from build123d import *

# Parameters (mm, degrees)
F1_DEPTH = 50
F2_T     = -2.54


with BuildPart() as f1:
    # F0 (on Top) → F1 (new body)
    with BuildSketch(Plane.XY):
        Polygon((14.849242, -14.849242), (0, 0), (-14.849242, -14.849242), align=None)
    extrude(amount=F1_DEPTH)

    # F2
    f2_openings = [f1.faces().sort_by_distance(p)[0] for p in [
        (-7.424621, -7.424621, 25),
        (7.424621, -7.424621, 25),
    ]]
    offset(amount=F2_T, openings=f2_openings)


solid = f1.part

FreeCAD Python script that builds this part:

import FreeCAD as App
import Part
import Sketcher
from FreeCAD import Vector


def faces_at(feature, points):
    """Names of the faces that lie closest to the given points."""
    faces = feature.Shape.Faces
    near = lambda p: min(range(len(faces)), key=lambda i: faces[i].distToShape(Part.Vertex(*p))[0])
    return sorted({f"Face{near(p) + 1}" for p in points})


def add_polygon(sketch, points):
    """Adds a closed chain of lines whose ends are joined by coincident constraints."""
    first, n = sketch.GeometryCount, len(points)
    for a, b in zip(points, points[1:] + points[:1]):
        sketch.addGeometry(Part.LineSegment(App.Vector(*a, 0), App.Vector(*b, 0)), False)
    for i in range(n):
        sketch.addConstraint(Sketcher.Constraint("Coincident", first + i, 2, first + (i + 1) % n, 1))

doc = App.newDocument("Part")
params = doc.addObject("Spreadsheet::Sheet", "Params")
for row, (alias, value) in enumerate([
    ("sketch1_length", "20.999999 mm"),
    ("pad1_length", "50 mm"),
    ("thickness_wall", "2.54 mm"),
], start=1):
    params.set(f"A{row}", alias)
    params.set(f"B{row}", "=" + value)
    params.setAlias(f"B{row}", alias)

body = doc.addObject("PartDesign::Body", "Body")

sketch1 = body.newObject("Sketcher::SketchObject", "Sketch")
sketch1.AttachmentSupport = (doc.getObject("XY_Plane"), [""])
sketch1.MapMode = "FlatFace"
add_polygon(sketch1, [(15, -15), (0, 0), (-15, -15)])
sketch1.addConstraint(Sketcher.Constraint("Horizontal", 2))
sketch1.addConstraint(Sketcher.Constraint("Coincident", 0, 2, -1, 1))
sketch1.addConstraint(Sketcher.Constraint("Perpendicular", 0, 1))
sketch1.addConstraint(Sketcher.Constraint("Equal", 0, 1))
sketch1.addConstraint(Sketcher.Constraint("Distance", 0, 20.999999))
sketch1.setExpression("Constraints[7]", "Params.sketch1_length")
pad1 = body.newObject("PartDesign::Pad", "Pad")
pad1.Profile = sketch1
pad1.setExpression("Length", "Params.pad1_length")
doc.recompute()

thickness = body.newObject("PartDesign::Thickness", "Thickness")
thickness.Base = (pad1, faces_at(pad1, [(-7.425, -7.425, 25), (7.425, -7.425, 25)]))
thickness.setExpression("Value", "Params.thickness_wall")
thickness.Reversed = True
thickness.Join = "Arc"

doc.recompute()
